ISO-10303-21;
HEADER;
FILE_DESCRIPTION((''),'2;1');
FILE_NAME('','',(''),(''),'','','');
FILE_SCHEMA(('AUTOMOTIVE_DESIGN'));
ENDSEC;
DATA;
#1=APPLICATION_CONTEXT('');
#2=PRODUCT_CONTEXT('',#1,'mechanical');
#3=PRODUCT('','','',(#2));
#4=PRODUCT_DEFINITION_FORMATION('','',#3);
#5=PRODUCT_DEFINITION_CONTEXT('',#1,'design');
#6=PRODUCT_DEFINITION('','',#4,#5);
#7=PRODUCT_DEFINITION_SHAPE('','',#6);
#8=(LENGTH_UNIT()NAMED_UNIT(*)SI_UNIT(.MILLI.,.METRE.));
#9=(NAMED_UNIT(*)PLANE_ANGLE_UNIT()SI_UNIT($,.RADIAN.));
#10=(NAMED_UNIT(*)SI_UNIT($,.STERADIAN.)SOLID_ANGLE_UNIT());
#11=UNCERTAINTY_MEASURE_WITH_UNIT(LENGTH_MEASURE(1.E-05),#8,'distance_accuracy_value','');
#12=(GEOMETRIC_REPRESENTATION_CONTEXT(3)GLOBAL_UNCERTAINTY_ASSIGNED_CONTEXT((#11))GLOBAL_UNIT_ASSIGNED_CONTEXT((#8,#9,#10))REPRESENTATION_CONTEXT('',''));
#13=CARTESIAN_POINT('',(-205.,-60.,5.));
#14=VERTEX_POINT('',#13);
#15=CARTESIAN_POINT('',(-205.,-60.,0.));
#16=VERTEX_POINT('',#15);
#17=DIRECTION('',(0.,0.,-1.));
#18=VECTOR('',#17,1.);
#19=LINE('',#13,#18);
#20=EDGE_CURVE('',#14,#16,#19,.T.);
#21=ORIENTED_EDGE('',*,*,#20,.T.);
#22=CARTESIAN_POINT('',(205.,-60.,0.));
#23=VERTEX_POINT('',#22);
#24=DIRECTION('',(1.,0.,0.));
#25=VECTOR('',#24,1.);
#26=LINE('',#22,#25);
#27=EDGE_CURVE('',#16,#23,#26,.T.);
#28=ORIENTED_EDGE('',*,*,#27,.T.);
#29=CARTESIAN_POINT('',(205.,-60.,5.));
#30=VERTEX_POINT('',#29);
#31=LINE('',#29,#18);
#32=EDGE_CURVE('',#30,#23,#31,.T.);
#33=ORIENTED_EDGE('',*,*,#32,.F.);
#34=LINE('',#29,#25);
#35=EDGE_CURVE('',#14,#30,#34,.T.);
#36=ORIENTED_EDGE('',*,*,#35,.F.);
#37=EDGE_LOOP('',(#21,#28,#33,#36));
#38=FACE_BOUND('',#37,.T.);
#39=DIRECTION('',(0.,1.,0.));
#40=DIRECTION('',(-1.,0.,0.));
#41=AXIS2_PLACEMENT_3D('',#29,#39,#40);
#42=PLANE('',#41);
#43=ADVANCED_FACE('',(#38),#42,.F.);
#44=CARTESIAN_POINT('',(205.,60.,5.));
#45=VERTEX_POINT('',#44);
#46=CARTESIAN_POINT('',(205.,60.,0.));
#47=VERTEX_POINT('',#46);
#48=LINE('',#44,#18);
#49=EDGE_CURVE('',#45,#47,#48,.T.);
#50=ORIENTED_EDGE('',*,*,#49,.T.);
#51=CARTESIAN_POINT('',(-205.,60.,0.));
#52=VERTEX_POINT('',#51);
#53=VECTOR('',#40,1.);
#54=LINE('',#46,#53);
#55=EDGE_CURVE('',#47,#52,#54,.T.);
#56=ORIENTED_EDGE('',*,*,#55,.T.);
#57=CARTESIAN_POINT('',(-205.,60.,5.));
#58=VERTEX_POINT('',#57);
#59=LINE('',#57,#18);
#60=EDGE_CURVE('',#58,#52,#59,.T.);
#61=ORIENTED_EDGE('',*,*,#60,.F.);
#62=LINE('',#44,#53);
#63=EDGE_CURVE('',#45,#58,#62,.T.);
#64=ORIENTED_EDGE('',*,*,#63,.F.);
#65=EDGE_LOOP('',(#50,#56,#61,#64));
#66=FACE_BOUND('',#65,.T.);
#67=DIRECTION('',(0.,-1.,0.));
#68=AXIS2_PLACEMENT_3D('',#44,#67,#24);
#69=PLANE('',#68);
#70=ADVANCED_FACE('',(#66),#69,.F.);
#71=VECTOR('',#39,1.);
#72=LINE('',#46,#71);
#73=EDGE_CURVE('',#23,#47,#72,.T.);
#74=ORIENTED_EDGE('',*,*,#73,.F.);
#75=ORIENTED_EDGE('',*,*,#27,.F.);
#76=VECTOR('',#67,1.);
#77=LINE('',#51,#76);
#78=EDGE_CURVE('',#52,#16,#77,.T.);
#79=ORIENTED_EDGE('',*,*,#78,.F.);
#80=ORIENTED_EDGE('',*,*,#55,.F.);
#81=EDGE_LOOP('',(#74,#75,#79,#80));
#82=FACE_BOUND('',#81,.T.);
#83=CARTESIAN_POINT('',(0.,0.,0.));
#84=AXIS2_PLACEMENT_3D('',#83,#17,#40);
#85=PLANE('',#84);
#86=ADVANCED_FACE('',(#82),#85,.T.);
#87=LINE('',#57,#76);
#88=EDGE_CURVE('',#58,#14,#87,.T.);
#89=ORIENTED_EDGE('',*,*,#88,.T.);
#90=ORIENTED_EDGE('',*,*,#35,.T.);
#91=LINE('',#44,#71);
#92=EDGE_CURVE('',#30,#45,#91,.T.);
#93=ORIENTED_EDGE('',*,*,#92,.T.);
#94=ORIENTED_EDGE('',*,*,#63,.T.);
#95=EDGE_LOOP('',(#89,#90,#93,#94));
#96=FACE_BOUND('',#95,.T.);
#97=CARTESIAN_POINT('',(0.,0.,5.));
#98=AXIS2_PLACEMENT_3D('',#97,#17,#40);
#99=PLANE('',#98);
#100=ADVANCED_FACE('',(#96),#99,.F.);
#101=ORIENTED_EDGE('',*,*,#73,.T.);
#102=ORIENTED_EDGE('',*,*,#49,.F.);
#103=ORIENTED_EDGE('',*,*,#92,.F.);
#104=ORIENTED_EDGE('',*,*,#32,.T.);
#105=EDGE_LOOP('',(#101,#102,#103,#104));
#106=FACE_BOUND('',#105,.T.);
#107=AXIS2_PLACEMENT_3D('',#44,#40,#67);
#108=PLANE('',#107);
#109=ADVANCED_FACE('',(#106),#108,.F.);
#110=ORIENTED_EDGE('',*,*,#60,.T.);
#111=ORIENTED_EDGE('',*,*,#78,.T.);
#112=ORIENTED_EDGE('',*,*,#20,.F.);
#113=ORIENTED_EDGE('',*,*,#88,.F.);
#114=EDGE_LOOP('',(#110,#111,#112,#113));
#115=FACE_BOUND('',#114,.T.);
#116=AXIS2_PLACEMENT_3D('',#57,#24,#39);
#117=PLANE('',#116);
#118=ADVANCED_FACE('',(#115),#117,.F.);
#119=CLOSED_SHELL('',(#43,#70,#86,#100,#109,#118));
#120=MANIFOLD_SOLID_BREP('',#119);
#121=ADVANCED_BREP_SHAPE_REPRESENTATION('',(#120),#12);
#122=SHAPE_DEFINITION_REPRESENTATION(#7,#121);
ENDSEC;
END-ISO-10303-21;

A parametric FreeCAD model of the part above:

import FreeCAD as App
import Part
import Sketcher


def add_polygon(sketch, points):
    """Adds a closed chain of lines whose ends are joined by coincident constraints."""
    first, n = sketch.GeometryCount, len(points)
    for a, b in zip(points, points[1:] + points[:1]):
        sketch.addGeometry(Part.LineSegment(App.Vector(*a, 0), App.Vector(*b, 0)), False)
    for i in range(n):
        sketch.addConstraint(Sketcher.Constraint("Coincident", first + i, 2, first + (i + 1) % n, 1))

doc = App.newDocument("Part")
body = doc.addObject("PartDesign::Body", "Body")

sketch1 = body.newObject("Sketcher::SketchObject", "Sketch")
sketch1.AttachmentSupport = (doc.getObject("XY_Plane"), [""])
sketch1.MapMode = "FlatFace"
add_polygon(sketch1, [(-205, 60), (-205, -60), (205, -60), (205, 60)])
sketch1.addConstraint(Sketcher.Constraint("Vertical", 0))
sketch1.addConstraint(Sketcher.Constraint("Horizontal", 1))
sketch1.addConstraint(Sketcher.Constraint("Vertical", 2))
sketch1.addConstraint(Sketcher.Constraint("Horizontal", 3))
sketch1.addConstraint(Sketcher.Constraint("Symmetric", 0, 2, 2, 2, -1, 1))
sketch1.addConstraint(Sketcher.Constraint("DistanceX", 1, 1, 1, 2, 410.0))
sketch1.addConstraint(Sketcher.Constraint("DistanceY", 0, 2, 0, 1, 120.0))
pad1 = body.newObject("PartDesign::Pad", "Pad")
pad1.Profile = sketch1
pad1.Length = 5

doc.recompute()
